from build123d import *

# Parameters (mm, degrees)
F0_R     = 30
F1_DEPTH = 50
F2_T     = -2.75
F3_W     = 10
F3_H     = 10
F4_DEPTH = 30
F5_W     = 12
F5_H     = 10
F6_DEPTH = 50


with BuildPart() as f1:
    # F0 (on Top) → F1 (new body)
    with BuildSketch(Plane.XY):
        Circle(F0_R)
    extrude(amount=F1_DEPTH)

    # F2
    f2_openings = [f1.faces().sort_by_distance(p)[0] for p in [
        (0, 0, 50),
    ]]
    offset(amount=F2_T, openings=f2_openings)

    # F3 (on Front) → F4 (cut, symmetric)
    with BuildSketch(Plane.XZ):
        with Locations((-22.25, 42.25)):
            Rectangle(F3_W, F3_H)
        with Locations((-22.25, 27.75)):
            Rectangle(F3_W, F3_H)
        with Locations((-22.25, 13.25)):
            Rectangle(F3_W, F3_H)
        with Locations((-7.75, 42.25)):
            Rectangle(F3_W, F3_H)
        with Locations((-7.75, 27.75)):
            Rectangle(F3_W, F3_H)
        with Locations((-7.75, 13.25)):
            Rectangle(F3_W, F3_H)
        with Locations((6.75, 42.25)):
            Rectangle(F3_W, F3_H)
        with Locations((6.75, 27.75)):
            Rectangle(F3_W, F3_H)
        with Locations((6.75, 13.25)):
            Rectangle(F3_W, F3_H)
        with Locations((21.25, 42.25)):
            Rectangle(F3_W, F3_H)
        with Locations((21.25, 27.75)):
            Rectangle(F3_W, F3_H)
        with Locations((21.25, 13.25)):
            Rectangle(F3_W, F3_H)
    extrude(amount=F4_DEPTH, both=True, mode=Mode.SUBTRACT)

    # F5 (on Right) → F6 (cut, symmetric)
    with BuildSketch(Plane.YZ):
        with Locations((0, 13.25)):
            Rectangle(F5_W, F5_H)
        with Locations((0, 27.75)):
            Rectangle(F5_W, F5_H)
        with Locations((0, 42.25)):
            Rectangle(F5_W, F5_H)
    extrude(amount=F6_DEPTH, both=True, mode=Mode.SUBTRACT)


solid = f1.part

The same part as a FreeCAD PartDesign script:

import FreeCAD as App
import Part
import Sketcher
Q = App.Units.Quantity


def faces_at(feature, points):
    """Names of the faces that lie closest to the given points."""
    faces = feature.Shape.Faces
    near = lambda p: min(range(len(faces)), key=lambda i: faces[i].distToShape(Part.Vertex(*p))[0])
    return sorted({f"Face{near(p) + 1}" for p in points})

doc = App.newDocument("Part")
body = doc.addObject("PartDesign::Body", "Body")

sketch1 = doc.addObject("Sketcher::SketchObject", "Sketch")
body.addObject(sketch1)
sketch1.AttachmentSupport = (doc.XY_Plane, [""])
sketch1.MapMode = "FlatFace"
sketch1.addGeometry(Part.Circle(App.Vector(0, 0, 0), App.Vector(0, 0, 1), 30), False)
sketch1.addConstraint([
    Sketcher.Constraint("Coincident", 0, 3, -1, 1),
    Sketcher.Constraint("Diameter", 0, Q("60 mm")),
])
pad1 = doc.addObject("PartDesign::Pad", "Pad")
body.addObject(pad1)
pad1.Profile = sketch1
pad1.Length = 50
doc.recompute()

thickness = doc.addObject("PartDesign::Thickness", "Thickness")
body.addObject(thickness)
thickness.Base = (pad1, faces_at(pad1, [(0, 0, 50)]))
thickness.Value = 2.75
thickness.Reversed = True
thickness.Join = "Arc"

sketch2 = doc.addObject("Sketcher::SketchObject", "Sketch001")
body.addObject(sketch2)
sketch2.AttachmentSupport = (doc.XZ_Plane, [""])
sketch2.MapMode = "FlatFace"
sketch2.addGeometry([
    Part.LineSegment(App.Vector(-27, 47, 0), App.Vector(-27, 37, 0)),
    Part.LineSegment(App.Vector(-27, 37, 0), App.Vector(-17, 37, 0)),
    Part.LineSegment(App.Vector(-17, 37, 0), App.Vector(-17, 47, 0)),
    Part.LineSegment(App.Vector(-17, 47, 0), App.Vector(-27, 47, 0)),
    Part.LineSegment(App.Vector(-27, 33, 0), App.Vector(-27, 23, 0)),
    Part.LineSegment(App.Vector(-27, 23, 0), App.Vector(-17, 23, 0)),
    Part.LineSegment(App.Vector(-17, 23, 0), App.Vector(-17, 33, 0)),
    Part.LineSegment(App.Vector(-17, 33, 0), App.Vector(-27, 33, 0)),
    Part.LineSegment(App.Vector(-27, 18, 0), App.Vector(-27, 8, 0)),
    Part.LineSegment(App.Vector(-27, 8, 0), App.Vector(-17, 8, 0)),
    Part.LineSegment(App.Vector(-17, 8, 0), App.Vector(-17, 18, 0)),
    Part.LineSegment(App.Vector(-17, 18, 0), App.Vector(-27, 18, 0)),
    Part.LineSegment(App.Vector(-13, 47, 0), App.Vector(-13, 37, 0)),
    Part.LineSegment(App.Vector(-13, 37, 0), App.Vector(-3, 37, 0)),
    Part.LineSegment(App.Vector(-3, 37, 0), App.Vector(-3, 47, 0)),
    Part.LineSegment(App.Vector(-3, 47, 0), App.Vector(-13, 47, 0)),
    Part.LineSegment(App.Vector(-13, 33, 0), App.Vector(-13, 23, 0)),
    Part.LineSegment(App.Vector(-13, 23, 0), App.Vector(-3, 23, 0)),
    Part.LineSegment(App.Vector(-3, 23, 0), App.Vector(-3, 33, 0)),
    Part.LineSegment(App.Vector(-3, 33, 0), App.Vector(-13, 33, 0)),
    Part.LineSegment(App.Vector(-13, 18, 0), App.Vector(-13, 8, 0)),
    Part.LineSegment(App.Vector(-13, 8, 0), App.Vector(-3, 8, 0)),
    Part.LineSegment(App.Vector(-3, 8, 0), App.Vector(-3, 18, 0)),
    Part.LineSegment(App.Vector(-3, 18, 0), App.Vector(-13, 18, 0)),
    Part.LineSegment(App.Vector(2, 47, 0), App.Vector(2, 37, 0)),
    Part.LineSegment(App.Vector(2, 37, 0), App.Vector(12, 37, 0)),
    Part.LineSegment(App.Vector(12, 37, 0), App.Vector(12, 47, 0)),
    Part.LineSegment(App.Vector(12, 47, 0), App.Vector(2, 47, 0)),
    Part.LineSegment(App.Vector(2, 33, 0), App.Vector(2, 23, 0)),
    Part.LineSegment(App.Vector(2, 23, 0), App.Vector(12, 23, 0)),
    Part.LineSegment(App.Vector(12, 23, 0), App.Vector(12, 33, 0)),
    Part.LineSegment(App.Vector(12, 33, 0), App.Vector(2, 33, 0)),
    Part.LineSegment(App.Vector(2, 18, 0), App.Vector(2, 8, 0)),
    Part.LineSegment(App.Vector(2, 8, 0), App.Vector(12, 8, 0)),
    Part.LineSegment(App.Vector(12, 8, 0), App.Vector(12, 18, 0)),
    Part.LineSegment(App.Vector(12, 18, 0), App.Vector(2, 18, 0)),
    Part.LineSegment(App.Vector(16, 47, 0), App.Vector(16, 37, 0)),
    Part.LineSegment(App.Vector(16, 37, 0), App.Vector(26, 37, 0)),
    Part.LineSegment(App.Vector(26, 37, 0), App.Vector(26, 47, 0)),
    Part.LineSegment(App.Vector(26, 47, 0), App.Vector(16, 47, 0)),
    Part.LineSegment(App.Vector(16, 33, 0), App.Vector(16, 23, 0)),
    Part.LineSegment(App.Vector(16, 23, 0), App.Vector(26, 23, 0)),
    Part.LineSegment(App.Vector(26, 23, 0), App.Vector(26, 33, 0)),
    Part.LineSegment(App.Vector(26, 33, 0), App.Vector(16, 33, 0)),
    Part.LineSegment(App.Vector(16, 18, 0), App.Vector(16, 8, 0)),
    Part.LineSegment(App.Vector(16, 8, 0), App.Vector(26, 8, 0)),
    Part.LineSegment(App.Vector(26, 8, 0), App.Vector(26, 18, 0)),
    Part.LineSegment(App.Vector(26, 18, 0), App.Vector(16, 18, 0)),
], False)
sketch2.addConstraint([
    Sketcher.Constraint("Coincident", 0, 2, 1, 1),
    Sketcher.Constraint("Coincident", 1, 2, 2, 1),
    Sketcher.Constraint("Coincident", 2, 2, 3, 1),
    Sketcher.Constraint("Coincident", 3, 2, 0, 1),
    Sketcher.Constraint("Coincident", 4, 2, 5, 1),
    Sketcher.Constraint("Coincident", 5, 2, 6, 1),
    Sketcher.Constraint("Coincident", 6, 2, 7, 1),
    Sketcher.Constraint("Coincident", 7, 2, 4, 1),
    Sketcher.Constraint("Coincident", 8, 2, 9, 1),
    Sketcher.Constraint("Coincident", 9, 2, 10, 1),
    Sketcher.Constraint("Coincident", 10, 2, 11, 1),
    Sketcher.Constraint("Coincident", 11, 2, 8, 1),
    Sketcher.Constraint("Coincident", 12, 2, 13, 1),
    Sketcher.Constraint("Coincident", 13, 2, 14, 1),
    Sketcher.Constraint("Coincident", 14, 2, 15, 1),
    Sketcher.Constraint("Coincident", 15, 2, 12, 1),
    Sketcher.Constraint("Coincident", 16, 2, 17, 1),
    Sketcher.Constraint("Coincident", 17, 2, 18, 1),
    Sketcher.Constraint("Coincident", 18, 2, 19, 1),
    Sketcher.Constraint("Coincident", 19, 2, 16, 1),
    Sketcher.Constraint("Coincident", 20, 2, 21, 1),
    Sketcher.Constraint("Coincident", 21, 2, 22, 1),
    Sketcher.Constraint("Coincident", 22, 2, 23, 1),
    Sketcher.Constraint("Coincident", 23, 2, 20, 1),
    Sketcher.Constraint("Coincident", 24, 2, 25, 1),
    Sketcher.Constraint("Coincident", 25, 2, 26, 1),
    Sketcher.Constraint("Coincident", 26, 2, 27, 1),
    Sketcher.Constraint("Coincident", 27, 2, 24, 1),
    Sketcher.Constraint("Coincident", 28, 2, 29, 1),
    Sketcher.Constraint("Coincident", 29, 2, 30, 1),
    Sketcher.Constraint("Coincident", 30, 2, 31, 1),
    Sketcher.Constraint("Coincident", 31, 2, 28, 1),
    Sketcher.Constraint("Coincident", 32, 2, 33, 1),
    Sketcher.Constraint("Coincident", 33, 2, 34, 1),
    Sketcher.Constraint("Coincident", 34, 2, 35, 1),
    Sketcher.Constraint("Coincident", 35, 2, 32, 1),
    Sketcher.Constraint("Coincident", 36, 2, 37, 1),
    Sketcher.Constraint("Coincident", 37, 2, 38, 1),
    Sketcher.Constraint("Coincident", 38, 2, 39, 1),
    Sketcher.Constraint("Coincident", 39, 2, 36, 1),
    Sketcher.Constraint("Coincident", 40, 2, 41, 1),
    Sketcher.Constraint("Coincident", 41, 2, 42, 1),
    Sketcher.Constraint("Coincident", 42, 2, 43, 1),
    Sketcher.Constraint("Coincident", 43, 2, 40, 1),
    Sketcher.Constraint("Coincident", 44, 2, 45, 1),
    Sketcher.Constraint("Coincident", 45, 2, 46, 1),
    Sketcher.Constraint("Coincident", 46, 2, 47, 1),
    Sketcher.Constraint("Coincident", 47, 2, 44, 1),
    Sketcher.Constraint("Vertical", 0),
    Sketcher.Constraint("Horizontal", 1),
    Sketcher.Constraint("Vertical", 2),
    Sketcher.Constraint("Horizontal", 3),
    Sketcher.Constraint("Vertical", 4),
    Sketcher.Constraint("Horizontal", 5),
    Sketcher.Constraint("Vertical", 6),
    Sketcher.Constraint("Horizontal", 7),
    Sketcher.Constraint("Vertical", 8),
    Sketcher.Constraint("Horizontal", 9),
    Sketcher.Constraint("Vertical", 10),
    Sketcher.Constraint("Horizontal", 11),
    Sketcher.Constraint("Vertical", 12),
    Sketcher.Constraint("Horizontal", 13),
    Sketcher.Constraint("Vertical", 14),
    Sketcher.Constraint("Horizontal", 15),
    Sketcher.Constraint("Vertical", 16),
    Sketcher.Constraint("Horizontal", 17),
    Sketcher.Constraint("Vertical", 18),
    Sketcher.Constraint("Horizontal", 19),
    Sketcher.Constraint("Vertical", 20),
    Sketcher.Constraint("Horizontal", 21),
    Sketcher.Constraint("Vertical", 22),
    Sketcher.Constraint("Horizontal", 23),
    Sketcher.Constraint("Vertical", 24),
    Sketcher.Constraint("Horizontal", 25),
    Sketcher.Constraint("Vertical", 26),
    Sketcher.Constraint("Horizontal", 27),
    Sketcher.Constraint("Vertical", 28),
    Sketcher.Constraint("Horizontal", 29),
    Sketcher.Constraint("Vertical", 30),
    Sketcher.Constraint("Horizontal", 31),
    Sketcher.Constraint("Vertical", 32),
    Sketcher.Constraint("Horizontal", 33),
    Sketcher.Constraint("Vertical", 34),
    Sketcher.Constraint("Horizontal", 35),
    Sketcher.Constraint("Vertical", 36),
    Sketcher.Constraint("Horizontal", 37),
    Sketcher.Constraint("Vertical", 38),
    Sketcher.Constraint("Horizontal", 39),
    Sketcher.Constraint("Vertical", 40),
    Sketcher.Constraint("Horizontal", 41),
    Sketcher.Constraint("Vertical", 42),
    Sketcher.Constraint("Horizontal", 43),
    Sketcher.Constraint("Vertical", 44),
    Sketcher.Constraint("Horizontal", 45),
    Sketcher.Constraint("Vertical", 46),
    Sketcher.Constraint("Horizontal", 47),
    Sketcher.Constraint("Horizontal", 1, 2, 12, 2),
    Sketcher.Constraint("Horizontal", 3, 2, 14, 2),
    Sketcher.Constraint("Horizontal", 5, 2, 16, 2),
    Sketcher.Constraint("Horizontal", 7, 2, 18, 2),
    Sketcher.Constraint("Horizontal", 9, 2, 20, 2),
    Sketcher.Constraint("Horizontal", 11, 2, 22, 2),
    Sketcher.Constraint("Horizontal", 13, 2, 24, 2),
    Sketcher.Constraint("Horizontal", 15, 2, 26, 2),
    Sketcher.Constraint("Horizontal", 17, 2, 28, 2),
    Sketcher.Constraint("Horizontal", 19, 2, 30, 2),
    Sketcher.Constraint("Horizontal", 21, 2, 32, 2),
    Sketcher.Constraint("Horizontal", 23, 2, 34, 2),
    Sketcher.Constraint("Horizontal", 25, 2, 36, 2),
    Sketcher.Constraint("Horizontal", 27, 2, 38, 2),
    Sketcher.Constraint("Horizontal", 29, 2, 40, 2),
    Sketcher.Constraint("Horizontal", 31, 2, 42, 2),
    Sketcher.Constraint("Horizontal", 33, 2, 44, 2),
    Sketcher.Constraint("Horizontal", 35, 2, 46, 2),
    Sketcher.Constraint("Vertical", 3, 2, 4, 2),
    Sketcher.Constraint("Vertical", 2, 2, 5, 2),
    Sketcher.Constraint("Vertical", 7, 2, 8, 2),
    Sketcher.Constraint("Vertical", 6, 2, 9, 2),
    Sketcher.Constraint("Vertical", 15, 2, 16, 2),
    Sketcher.Constraint("Vertical", 14, 2, 17, 2),
    Sketcher.Constraint("Vertical", 19, 2, 20, 2),
    Sketcher.Constraint("Vertical", 18, 2, 21, 2),
    Sketcher.Constraint("Vertical", 27, 2, 28, 2),
    Sketcher.Constraint("Vertical", 26, 2, 29, 2),
    Sketcher.Constraint("Vertical", 31, 2, 32, 2),
    Sketcher.Constraint("Vertical", 30, 2, 33, 2),
    Sketcher.Constraint("Vertical", 39, 2, 40, 2),
    Sketcher.Constraint("Vertical", 38, 2, 41, 2),
    Sketcher.Constraint("Vertical", 43, 2, 44, 2),
    Sketcher.Constraint("Vertical", 42, 2, 45, 2),
    Sketcher.Constraint("Equal", 11, 13),
    Sketcher.Constraint("Equal", 23, 25),
    Sketcher.Constraint("Equal", 35, 37),
    Sketcher.Constraint("Equal", 47, 0),
    Sketcher.Constraint("Equal", 2, 4),
    Sketcher.Constraint("Equal", 6, 8),
    Sketcher.Constraint("DistanceX", 1, 1, 1, 2, Q("10 mm")),
    Sketcher.Constraint("DistanceY", 8, 2, 0, 2, Q("29 mm")),
    Sketcher.Constraint("DistanceY", 4, 2, 0, 2, Q("14.5 mm")),
    Sketcher.Constraint("DistanceX", 1, 2, 12, 2, Q("4.5 mm")),
    Sketcher.Constraint("DistanceX", 13, 2, 24, 2, Q("4.5 mm")),
    Sketcher.Constraint("DistanceX", 25, 2, 36, 2, Q("4.5 mm")),
    Sketcher.Constraint("DistanceX", 0, 2, -1, 1, Q("27.25 mm")),
    Sketcher.Constraint("DistanceY", -1, 1, 0, 2, Q("37.25 mm")),
])
pocket1 = doc.addObject("PartDesign::Pocket", "Pocket")
body.addObject(pocket1)
pocket1.Profile = sketch2
pocket1.Length = 60
pocket1.Midplane = True

sketch3 = doc.addObject("Sketcher::SketchObject", "Sketch002")
body.addObject(sketch3)
sketch3.AttachmentSupport = (doc.YZ_Plane, [""])
sketch3.MapMode = "FlatFace"
sketch3.addGeometry([
    Part.LineSegment(App.Vector(-6, 18, 0), App.Vector(-6, 8, 0)),
    Part.LineSegment(App.Vector(-6, 8, 0), App.Vector(6, 8, 0)),
    Part.LineSegment(App.Vector(6, 8, 0), App.Vector(6, 18, 0)),
    Part.LineSegment(App.Vector(6, 18, 0), App.Vector(-6, 18, 0)),
    Part.LineSegment(App.Vector(-6, 33, 0), App.Vector(-6, 23, 0)),
    Part.LineSegment(App.Vector(-6, 23, 0), App.Vector(6, 23, 0)),
    Part.LineSegment(App.Vector(6, 23, 0), App.Vector(6, 33, 0)),
    Part.LineSegment(App.Vector(6, 33, 0), App.Vector(-6, 33, 0)),
    Part.LineSegment(App.Vector(-6, 47, 0), App.Vector(-6, 37, 0)),
    Part.LineSegment(App.Vector(-6, 37, 0), App.Vector(6, 37, 0)),
    Part.LineSegment(App.Vector(6, 37, 0), App.Vector(6, 47, 0)),
    Part.LineSegment(App.Vector(6, 47, 0), App.Vector(-6, 47, 0)),
], False)
sketch3.addConstraint([
    Sketcher.Constraint("Coincident", 0, 2, 1, 1),
    Sketcher.Constraint("Coincident", 1, 2, 2, 1),
    Sketcher.Constraint("Coincident", 2, 2, 3, 1),
    Sketcher.Constraint("Coincident", 3, 2, 0, 1),
    Sketcher.Constraint("Coincident", 4, 2, 5, 1),
    Sketcher.Constraint("Coincident", 5, 2, 6, 1),
    Sketcher.Constraint("Coincident", 6, 2, 7, 1),
    Sketcher.Constraint("Coincident", 7, 2, 4, 1),
    Sketcher.Constraint("Coincident", 8, 2, 9, 1),
    Sketcher.Constraint("Coincident", 9, 2, 10, 1),
    Sketcher.Constraint("Coincident", 10, 2, 11, 1),
    Sketcher.Constraint("Coincident", 11, 2, 8, 1),
    Sketcher.Constraint("Vertical", 0),
    Sketcher.Constraint("Horizontal", 1),
    Sketcher.Constraint("Vertical", 2),
    Sketcher.Constraint("Horizontal", 3),
    Sketcher.Constraint("Vertical", 4),
    Sketcher.Constraint("Horizontal", 5),
    Sketcher.Constraint("Vertical", 6),
    Sketcher.Constraint("Horizontal", 7),
    Sketcher.Constraint("Vertical", 8),
    Sketcher.Constraint("Horizontal", 9),
    Sketcher.Constraint("Vertical", 10),
    Sketcher.Constraint("Horizontal", 11),
    Sketcher.Constraint("Vertical", 3, 2, 4, 2),
    Sketcher.Constraint("Vertical", 2, 2, 5, 2),
    Sketcher.Constraint("Vertical", 7, 2, 8, 2),
    Sketcher.Constraint("Vertical", 6, 2, 9, 2),
    Sketcher.Constraint("Equal", 2, 4),
    Sketcher.Constraint("Equal", 6, 8),
    Sketcher.Constraint("DistanceX", 1, 1, 1, 2, Q("12 mm")),
    Sketcher.Constraint("DistanceY", 0, 2, 0, 1, Q("10 mm")),
    Sketcher.Constraint("DistanceX", 0, 2, -1, 1, Q("6 mm")),
    Sketcher.Constraint("DistanceY", 3, 2, 8, 2, Q("19 mm")),
    Sketcher.Constraint("DistanceY", 3, 2, 4, 2, Q("4.5 mm")),
    Sketcher.Constraint("DistanceY", -1, 1, 0, 2, Q("8.25 mm")),
])
pocket2 = doc.addObject("PartDesign::Pocket", "Pocket001")
body.addObject(pocket2)
pocket2.Profile = sketch3
pocket2.Length = 100
pocket2.Midplane = True

doc.recompute()
